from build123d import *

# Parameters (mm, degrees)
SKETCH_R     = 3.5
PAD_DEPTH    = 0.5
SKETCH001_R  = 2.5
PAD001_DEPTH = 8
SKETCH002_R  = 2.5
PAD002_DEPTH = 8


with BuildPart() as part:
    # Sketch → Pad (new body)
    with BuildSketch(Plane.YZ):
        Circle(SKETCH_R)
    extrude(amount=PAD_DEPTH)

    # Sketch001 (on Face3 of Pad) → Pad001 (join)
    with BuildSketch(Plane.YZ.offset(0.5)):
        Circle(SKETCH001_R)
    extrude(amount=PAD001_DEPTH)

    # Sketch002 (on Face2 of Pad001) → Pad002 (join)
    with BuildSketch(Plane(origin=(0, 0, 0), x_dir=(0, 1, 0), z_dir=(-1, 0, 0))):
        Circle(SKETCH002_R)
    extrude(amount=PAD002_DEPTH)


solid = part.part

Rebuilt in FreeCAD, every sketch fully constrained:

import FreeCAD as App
import Part
import Sketcher

V = App.Vector

doc = App.newDocument("Part")
body = doc.addObject("PartDesign::Body", "Body")

sketch1 = body.newObject("Sketcher::SketchObject", "Sketch")
sketch1.AttachmentSupport = (doc.getObject("YZ_Plane"), [""])
sketch1.MapMode = "FlatFace"
sketch1.addGeometry(Part.Circle(V(0, 0, 0), V(0, 0, 1), 3.5), False)
sketch1.addConstraint(Sketcher.Constraint("Coincident", 0, 3, -1, 1))
sketch1.addConstraint(Sketcher.Constraint("Diameter", 0, 7.0))
pad1 = body.newObject("PartDesign::Pad", "Pad")
pad1.Profile = sketch1
pad1.Length = 0.5

sketch2 = body.newObject("Sketcher::SketchObject", "Sketch001")
sketch2.AttachmentSupport = (doc.getObject("YZ_Plane"), [""])
sketch2.MapMode = "FlatFace"
sketch2.AttachmentOffset = App.Placement(V(0, 0, 0.5), App.Rotation())
sketch2.addGeometry(Part.Circle(V(0, 0, 0), V(0, 0, 1), 2.5), False)
sketch2.addConstraint(Sketcher.Constraint("Coincident", 0, 3, -1, 1))
sketch2.addConstraint(Sketcher.Constraint("Diameter", 0, 5.0))
pad2 = body.newObject("PartDesign::Pad", "Pad001")
pad2.Profile = sketch2
pad2.Length = 8

sketch3 = body.newObject("Sketcher::SketchObject", "Sketch002")
sketch3.AttachmentSupport = (doc.getObject("YZ_Plane"), [""])
sketch3.MapMode = "FlatFace"
sketch3.addGeometry(Part.Circle(V(0, 0, 0), V(0, 0, 1), 2.5), False)
sketch3.addConstraint(Sketcher.Constraint("Coincident", 0, 3, -1, 1))
sketch3.addConstraint(Sketcher.Constraint("Diameter", 0, 5.0))
pad3 = body.newObject("PartDesign::Pad", "Pad002")
pad3.Profile = sketch3
pad3.Length = 8
pad3.Reversed = True

doc.recompute()
